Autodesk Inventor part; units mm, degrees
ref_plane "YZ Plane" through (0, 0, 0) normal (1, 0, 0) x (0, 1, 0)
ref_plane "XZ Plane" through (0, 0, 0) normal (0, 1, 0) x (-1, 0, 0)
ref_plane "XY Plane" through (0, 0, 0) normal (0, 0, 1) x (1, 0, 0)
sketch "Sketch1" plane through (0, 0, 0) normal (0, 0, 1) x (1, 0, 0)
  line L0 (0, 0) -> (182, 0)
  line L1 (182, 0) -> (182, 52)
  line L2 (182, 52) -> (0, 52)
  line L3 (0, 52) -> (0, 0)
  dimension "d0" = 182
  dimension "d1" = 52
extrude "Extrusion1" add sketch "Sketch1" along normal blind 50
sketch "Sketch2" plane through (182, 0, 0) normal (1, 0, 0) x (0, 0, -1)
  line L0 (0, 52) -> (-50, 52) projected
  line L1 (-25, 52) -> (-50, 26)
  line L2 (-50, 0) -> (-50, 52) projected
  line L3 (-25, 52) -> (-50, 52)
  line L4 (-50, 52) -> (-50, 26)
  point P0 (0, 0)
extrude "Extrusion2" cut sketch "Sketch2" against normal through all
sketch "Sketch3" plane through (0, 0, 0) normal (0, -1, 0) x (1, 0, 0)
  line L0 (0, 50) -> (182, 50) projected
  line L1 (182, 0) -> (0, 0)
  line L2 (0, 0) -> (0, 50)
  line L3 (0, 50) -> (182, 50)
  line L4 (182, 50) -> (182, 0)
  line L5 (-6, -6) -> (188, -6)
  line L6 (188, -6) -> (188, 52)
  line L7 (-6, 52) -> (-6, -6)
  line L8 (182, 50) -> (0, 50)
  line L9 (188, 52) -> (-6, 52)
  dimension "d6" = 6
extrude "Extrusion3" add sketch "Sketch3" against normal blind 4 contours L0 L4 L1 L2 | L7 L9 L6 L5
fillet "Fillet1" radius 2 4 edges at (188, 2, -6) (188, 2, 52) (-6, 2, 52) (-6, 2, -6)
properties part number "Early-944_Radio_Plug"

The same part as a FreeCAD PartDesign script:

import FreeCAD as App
import Part
import Sketcher

V = App.Vector
Q = App.Units.Quantity


def edges_at(feature, points):
    """Names of the edges that pass closest to the given points."""
    edges = feature.Shape.Edges
    near = lambda p: min(range(len(edges)), key=lambda i: edges[i].distToShape(Part.Vertex(*p))[0])
    return sorted({f"Edge{near(p) + 1}" for p in points})


def add_polygon(sketch, points):
    """Adds a closed chain of lines whose ends are joined by coincident constraints."""
    first, n = sketch.GeometryCount, len(points)
    for a, b in zip(points, points[1:] + points[:1]):
        sketch.addGeometry(Part.LineSegment(App.Vector(*a, 0), App.Vector(*b, 0)), False)
    for i in range(n):
        sketch.addConstraint(Sketcher.Constraint("Coincident", first + i, 2, first + (i + 1) % n, 1))

doc = App.newDocument("Part")
body = doc.addObject("PartDesign::Body", "Body")

# Sketch on XY plane
sketch1 = doc.addObject("Sketcher::SketchObject", "Sketch")
body.addObject(sketch1)
sketch1.AttachmentSupport = (doc.XY_Plane, [""])
sketch1.MapMode = "FlatFace"
add_polygon(sketch1, [(0, 52), (0, 0), (182, 0), (182, 52)])  # lines 0-3
sketch1.addConstraint([
    Sketcher.Constraint("Vertical", 0),
    Sketcher.Constraint("Horizontal", 1),
    Sketcher.Constraint("Vertical", 2),
    Sketcher.Constraint("Horizontal", 3),
    Sketcher.Constraint("Coincident", 0, 2, -1, 1),
    Sketcher.Constraint("DistanceX", 1, 1, 1, 2, Q("182 mm")),
    Sketcher.Constraint("DistanceY", 0, 2, 0, 1, Q("52 mm")),
])
pad1 = doc.addObject("PartDesign::Pad", "Pad")
body.addObject(pad1)
pad1.Profile = sketch1
pad1.Length = 50

# Sketch on YZ plane
sketch2 = doc.addObject("Sketcher::SketchObject", "Sketch001")
body.addObject(sketch2)
sketch2.AttachmentSupport = (doc.YZ_Plane, [""])
sketch2.MapMode = "FlatFace"
sketch2.AttachmentOffset = App.Placement(V(0, 0, 182), App.Rotation())
add_polygon(sketch2, [(26, 50), (52, 25), (52, 50)])  # lines 0-2
sketch2.addConstraint([
    Sketcher.Constraint("Vertical", 1),
    Sketcher.Constraint("Horizontal", 2),
    Sketcher.Constraint("DistanceX", 2, 2, 2, 1, Q("26 mm")),
    Sketcher.Constraint("DistanceY", 1, 1, 1, 2, Q("25 mm")),
    Sketcher.Constraint("DistanceX", -1, 1, 0, 2, Q("52 mm")),
    Sketcher.Constraint("DistanceY", -1, 1, 0, 2, Q("25 mm")),
])
pocket1 = doc.addObject("PartDesign::Pocket", "Pocket")
body.addObject(pocket1)
pocket1.Profile = sketch2
pocket1.Type = "ThroughAll"

# Sketch on XZ plane
sketch3 = doc.addObject("Sketcher::SketchObject", "Sketch002")
body.addObject(sketch3)
sketch3.AttachmentSupport = (doc.XZ_Plane, [""])
sketch3.MapMode = "FlatFace"
add_polygon(sketch3, [(-6, 52), (-6, -6), (188, -6), (188, 52)])  # lines 0-3
sketch3.addConstraint([
    Sketcher.Constraint("Vertical", 0),
    Sketcher.Constraint("Horizontal", 1),
    Sketcher.Constraint("Vertical", 2),
    Sketcher.Constraint("Horizontal", 3),
    Sketcher.Constraint("DistanceX", 0, 2, -1, 1, Q("6 mm")),
    Sketcher.Constraint("DistanceY", 0, 2, -1, 1, Q("6 mm")),
    Sketcher.Constraint("DistanceX", 1, 1, 1, 2, Q("194 mm")),
    Sketcher.Constraint("DistanceY", 0, 2, 0, 1, Q("58 mm")),
])
pad2 = doc.addObject("PartDesign::Pad", "Pad001")
body.addObject(pad2)
pad2.Profile = sketch3
pad2.Length = 4
pad2.Reversed = True
doc.recompute()

fillet = doc.addObject("PartDesign::Fillet", "Fillet")
body.addObject(fillet)
fillet.Base = (pad2, edges_at(pad2, [
    (188, 2, -6),
    (188, 2, 52),
    (-6, 2, 52),
    (-6, 2, -6),
]))
fillet.Radius = 2

doc.recompute()
